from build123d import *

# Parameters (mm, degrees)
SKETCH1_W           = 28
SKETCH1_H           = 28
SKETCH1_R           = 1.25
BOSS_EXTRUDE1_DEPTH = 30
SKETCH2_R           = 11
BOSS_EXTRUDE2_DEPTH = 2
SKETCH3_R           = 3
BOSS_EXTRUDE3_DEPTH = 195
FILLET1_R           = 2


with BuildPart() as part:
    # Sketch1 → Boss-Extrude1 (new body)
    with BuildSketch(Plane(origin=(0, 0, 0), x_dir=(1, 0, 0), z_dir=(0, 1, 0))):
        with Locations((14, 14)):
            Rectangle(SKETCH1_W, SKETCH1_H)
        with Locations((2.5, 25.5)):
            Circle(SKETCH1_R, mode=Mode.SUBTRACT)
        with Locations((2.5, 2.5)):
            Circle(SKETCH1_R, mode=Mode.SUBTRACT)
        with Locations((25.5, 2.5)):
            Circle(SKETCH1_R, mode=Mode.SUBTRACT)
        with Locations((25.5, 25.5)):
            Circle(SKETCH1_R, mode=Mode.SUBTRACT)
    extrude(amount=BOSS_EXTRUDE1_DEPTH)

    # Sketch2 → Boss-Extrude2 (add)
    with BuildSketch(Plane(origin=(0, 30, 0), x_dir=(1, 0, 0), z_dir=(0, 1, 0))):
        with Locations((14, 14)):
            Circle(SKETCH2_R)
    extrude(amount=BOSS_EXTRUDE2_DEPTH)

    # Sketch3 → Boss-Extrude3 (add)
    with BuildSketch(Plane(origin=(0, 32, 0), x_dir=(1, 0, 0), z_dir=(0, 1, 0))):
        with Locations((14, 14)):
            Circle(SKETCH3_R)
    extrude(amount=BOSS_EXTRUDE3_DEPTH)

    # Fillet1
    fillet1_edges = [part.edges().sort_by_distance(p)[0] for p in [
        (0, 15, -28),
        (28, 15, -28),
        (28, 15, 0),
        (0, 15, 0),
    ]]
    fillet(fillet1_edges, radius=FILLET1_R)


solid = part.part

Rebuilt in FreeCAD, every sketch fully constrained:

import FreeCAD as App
import Part
import Sketcher

V = App.Vector


def edges_at(feature, points):
    """Names of the edges that pass closest to the given points."""
    edges = feature.Shape.Edges
    near = lambda p: min(range(len(edges)), key=lambda i: edges[i].distToShape(Part.Vertex(*p))[0])
    return sorted({f"Edge{near(p) + 1}" for p in points})

doc = App.newDocument("Part")
body = doc.addObject("PartDesign::Body", "Body")

sketch1 = doc.addObject("Sketcher::SketchObject", "Sketch")
body.addObject(sketch1)
sketch1.AttachmentSupport = (doc.XZ_Plane, [""])
sketch1.MapMode = "FlatFace"
sketch1.addGeometry([
    Part.LineSegment(V(0, -28, 0), V(0, 0, 0)),
    Part.LineSegment(V(0, 0, 0), V(28, 0, 0)),
    Part.LineSegment(V(28, 0, 0), V(28, -28, 0)),
    Part.LineSegment(V(28, -28, 0), V(0, -28, 0)),
    Part.Circle(V(2.5, -2.5, 0), V(0, 0, 1), 1.25),
    Part.Circle(V(25.5, -2.5, 0), V(0, 0, 1), 1.25),
    Part.Circle(V(2.5, -25.5, 0), V(0, 0, 1), 1.25),
    Part.Circle(V(25.5, -25.5, 0), V(0, 0, 1), 1.25),
], False)
sketch1.addConstraint([
    Sketcher.Constraint("Coincident", 0, 2, 1, 1),
    Sketcher.Constraint("Coincident", 1, 2, 2, 1),
    Sketcher.Constraint("Coincident", 2, 2, 3, 1),
    Sketcher.Constraint("Coincident", 3, 2, 0, 1),
    Sketcher.Constraint("Vertical", 0),
    Sketcher.Constraint("Horizontal", 1),
    Sketcher.Constraint("Vertical", 2),
    Sketcher.Constraint("Horizontal", 3),
    Sketcher.Constraint("Coincident", 0, 2, -1, 1),
    Sketcher.Constraint("Equal", 4, 5),
    Sketcher.Constraint("Equal", 5, 6),
    Sketcher.Constraint("Equal", 6, 7),
    Sketcher.Constraint("Horizontal", 4, 3, 5, 3),
    Sketcher.Constraint("Horizontal", 6, 3, 7, 3),
    Sketcher.Constraint("Vertical", 4, 3, 6, 3),
    Sketcher.Constraint("Vertical", 5, 3, 7, 3),
    Sketcher.Constraint("Equal", 3, 0),
    Sketcher.Constraint("Diameter", 4, 2.5),
    Sketcher.Constraint("DistanceX", 1, 1, 1, 2, 28.0),
    Sketcher.Constraint("DistanceX", 4, 3, 5, 3, 23.0),
    Sketcher.Constraint("DistanceY", 6, 3, 4, 3, 23.0),
    Sketcher.Constraint("DistanceX", -1, 1, 4, 3, 2.5),
    Sketcher.Constraint("DistanceY", 4, 3, -1, 1, 2.5),
])
pad1 = doc.addObject("PartDesign::Pad", "Pad")
body.addObject(pad1)
pad1.Profile = sketch1
pad1.Length = 30
pad1.Reversed = True

sketch2 = doc.addObject("Sketcher::SketchObject", "Sketch001")
body.addObject(sketch2)
sketch2.AttachmentSupport = (doc.XZ_Plane, [""])
sketch2.MapMode = "FlatFace"
sketch2.AttachmentOffset = App.Placement(V(0, 0, -30), App.Rotation())
sketch2.addGeometry(Part.Circle(V(14, -14, 0), V(0, 0, 1), 11), False)
sketch2.addConstraint([
    Sketcher.Constraint("Diameter", 0, 22.0),
    Sketcher.Constraint("DistanceX", -1, 1, 0, 3, 14.0),
    Sketcher.Constraint("DistanceY", 0, 3, -1, 1, 14.0),
])
pad2 = doc.addObject("PartDesign::Pad", "Pad001")
body.addObject(pad2)
pad2.Profile = sketch2
pad2.Length = 2
pad2.Reversed = True

sketch3 = doc.addObject("Sketcher::SketchObject", "Sketch002")
body.addObject(sketch3)
sketch3.AttachmentSupport = (doc.XZ_Plane, [""])
sketch3.MapMode = "FlatFace"
sketch3.AttachmentOffset = App.Placement(V(0, 0, -32), App.Rotation())
sketch3.addGeometry(Part.Circle(V(14, -14, 0), V(0, 0, 1), 3), False)
sketch3.addConstraint([
    Sketcher.Constraint("Diameter", 0, 6.0),
    Sketcher.Constraint("DistanceX", -1, 1, 0, 3, 14.0),
    Sketcher.Constraint("DistanceY", 0, 3, -1, 1, 14.0),
])
pad3 = doc.addObject("PartDesign::Pad", "Pad002")
body.addObject(pad3)
pad3.Profile = sketch3
pad3.Length = 195
pad3.Reversed = True
doc.recompute()

fillet = doc.addObject("PartDesign::Fillet", "Fillet")
body.addObject(fillet)
fillet.Base = (pad3, edges_at(pad3, [
    (0, 15, -28),
    (28, 15, -28),
    (28, 15, 0),
    (0, 15, 0),
]))
fillet.Radius = 2

doc.recompute()
